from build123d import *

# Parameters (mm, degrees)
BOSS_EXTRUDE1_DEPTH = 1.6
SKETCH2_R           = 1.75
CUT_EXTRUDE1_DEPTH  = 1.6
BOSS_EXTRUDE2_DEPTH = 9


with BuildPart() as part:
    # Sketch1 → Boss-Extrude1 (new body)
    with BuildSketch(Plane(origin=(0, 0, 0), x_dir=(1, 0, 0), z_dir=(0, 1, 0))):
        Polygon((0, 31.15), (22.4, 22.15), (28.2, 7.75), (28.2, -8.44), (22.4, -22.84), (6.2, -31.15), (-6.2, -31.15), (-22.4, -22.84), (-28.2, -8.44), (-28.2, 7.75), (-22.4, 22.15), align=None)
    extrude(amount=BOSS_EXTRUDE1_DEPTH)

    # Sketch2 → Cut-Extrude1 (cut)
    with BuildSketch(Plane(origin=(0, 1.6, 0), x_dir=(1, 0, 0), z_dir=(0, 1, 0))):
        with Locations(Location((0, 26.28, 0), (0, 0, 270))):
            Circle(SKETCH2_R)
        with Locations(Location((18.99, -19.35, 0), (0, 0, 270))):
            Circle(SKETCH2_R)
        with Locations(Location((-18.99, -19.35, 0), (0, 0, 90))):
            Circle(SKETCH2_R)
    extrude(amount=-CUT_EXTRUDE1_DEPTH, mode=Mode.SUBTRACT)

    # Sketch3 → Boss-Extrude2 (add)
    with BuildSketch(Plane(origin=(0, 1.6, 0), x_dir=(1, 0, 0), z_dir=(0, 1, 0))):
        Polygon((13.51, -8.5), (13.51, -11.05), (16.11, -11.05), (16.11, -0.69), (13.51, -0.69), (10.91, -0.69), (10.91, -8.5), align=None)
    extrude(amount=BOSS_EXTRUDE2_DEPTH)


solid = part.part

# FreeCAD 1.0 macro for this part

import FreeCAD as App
import Part
import Sketcher
from FreeCAD import Vector

doc = App.newDocument("Part")
body = doc.addObject("PartDesign::Body", "Body")

# Sketch on XZ plane
sketch1 = doc.addObject("Sketcher::SketchObject", "Sketch")
body.addObject(sketch1)
sketch1.AttachmentSupport = (doc.XZ_Plane, [""])
sketch1.MapMode = "FlatFace"
sketch1.addGeometry([
    Part.LineSegment(Vector(22, -22, 0), Vector(0, -31, 0)),  # 0
    Part.LineSegment(Vector(0, -31, 0), Vector(-22, -22, 0)),  # 1
    Part.LineSegment(Vector(-22, -22, 0), Vector(-28, -8, 0)),  # 2
    Part.LineSegment(Vector(-28, -8, 0), Vector(-28, 8, 0)),  # 3
    Part.LineSegment(Vector(-28, 8, 0), Vector(-22, 23, 0)),  # 4
    Part.LineSegment(Vector(-22, 23, 0), Vector(-6, 31, 0)),  # 5
    Part.LineSegment(Vector(-6, 31, 0), Vector(6, 31, 0)),  # 6
    Part.LineSegment(Vector(6, 31, 0), Vector(22, 23, 0)),  # 7
    Part.LineSegment(Vector(22, 23, 0), Vector(28, 8, 0)),  # 8
    Part.LineSegment(Vector(28, 8, 0), Vector(28, -8, 0)),  # 9
    Part.LineSegment(Vector(28, -8, 0), Vector(22, -22, 0)),  # 10
], False)
sketch1.addConstraint([
    Sketcher.Constraint("Coincident", 0, 2, 1, 1),
    Sketcher.Constraint("Coincident", 1, 2, 2, 1),
    Sketcher.Constraint("Coincident", 2, 2, 3, 1),
    Sketcher.Constraint("Coincident", 3, 2, 4, 1),
    Sketcher.Constraint("Coincident", 4, 2, 5, 1),
    Sketcher.Constraint("Coincident", 5, 2, 6, 1),
    Sketcher.Constraint("Coincident", 6, 2, 7, 1),
    Sketcher.Constraint("Coincident", 7, 2, 8, 1),
    Sketcher.Constraint("Coincident", 8, 2, 9, 1),
    Sketcher.Constraint("Coincident", 9, 2, 10, 1),
    Sketcher.Constraint("Coincident", 10, 2, 0, 1),
    Sketcher.Constraint("Vertical", 3),
    Sketcher.Constraint("Horizontal", 6),
    Sketcher.Constraint("Vertical", 9),
    Sketcher.Constraint("Symmetric", 4, 2, 7, 2, -2),
    Sketcher.Constraint("Symmetric", 3, 2, 8, 2, -2),
    Sketcher.Constraint("Symmetric", 1, 2, 10, 2, -2),
    Sketcher.Constraint("PointOnObject", 0, 2, -2),
    Sketcher.Constraint("Parallel", 2, 8),
    Sketcher.Constraint("Parallel", 4, 10),
    Sketcher.Constraint("Vertical", 1, 2, 4, 2),
    Sketcher.Constraint("Equal", 5, 7),
    Sketcher.Constraint("DistanceX", 6, 1, 6, 2, 12.4),
    Sketcher.Constraint("DistanceY", 0, 2, 1, 2, 9.0),
    Sketcher.Constraint("DistanceX", 3, 2, 5, 2, 22.0),
    Sketcher.Constraint("DistanceY", 3, 1, 3, 2, 16.19),
    Sketcher.Constraint("DistanceX", 1, 2, -1, 1, 22.4),
    Sketcher.Constraint("DistanceY", 1, 2, 2, 2, 14.4),
    Sketcher.Constraint("DistanceY", 2, 2, 5, 2, 38.9),
    Sketcher.Constraint("DistanceY", 0, 2, -1, 1, 31.15),
])
pad1 = doc.addObject("PartDesign::Pad", "Pad")
body.addObject(pad1)
pad1.Profile = sketch1
pad1.Length = 1.6
pad1.Reversed = True

# Sketch on XZ plane
sketch2 = doc.addObject("Sketcher::SketchObject", "Sketch001")
body.addObject(sketch2)
sketch2.AttachmentSupport = (doc.XZ_Plane, [""])
sketch2.MapMode = "FlatFace"
sketch2.AttachmentOffset = App.Placement(Vector(0, 0, -1.6), App.Rotation())
sketch2.addGeometry([
    Part.Circle(Vector(0, -26.3, 0), Vector(0, 0, 1), 1.8),
    Part.Circle(Vector(19, 19.4, 0), Vector(0, 0, 1), 1.8),
    Part.Circle(Vector(-19, 19.4, 0), Vector(0, 0, 1), 1.8),
], False)
sketch2.addConstraint([
    Sketcher.Constraint("Equal", 0, 1),
    Sketcher.Constraint("Equal", 1, 2),
    Sketcher.Constraint("Symmetric", 1, 3, 2, 3, -2),
    Sketcher.Constraint("PointOnObject", 0, 3, -2),
    Sketcher.Constraint("Diameter", 0, 3.5),
    Sketcher.Constraint("DistanceY", 0, 3, -1, 1, 26.28),
    Sketcher.Constraint("DistanceX", -1, 1, 1, 3, 18.99),
    Sketcher.Constraint("DistanceY", -1, 1, 1, 3, 19.35),
])
pocket1 = doc.addObject("PartDesign::Pocket", "Pocket")
body.addObject(pocket1)
pocket1.Profile = sketch2
pocket1.Length = 1.6
pocket1.Reversed = True

# Sketch on XZ plane
sketch3 = doc.addObject("Sketcher::SketchObject", "Sketch002")
body.addObject(sketch3)
sketch3.AttachmentSupport = (doc.XZ_Plane, [""])
sketch3.MapMode = "FlatFace"
sketch3.AttachmentOffset = App.Placement(Vector(0, 0, -1.6), App.Rotation())
sketch3.addGeometry([
    Part.LineSegment(Vector(13.5, 8.5, 0), Vector(13.5, 11.1, 0)),  # 0
    Part.LineSegment(Vector(13.5, 11.1, 0), Vector(16.1, 11.1, 0)),  # 1
    Part.LineSegment(Vector(16.1, 11.1, 0), Vector(16.1, 0.7, 0)),  # 2
    Part.LineSegment(Vector(16.1, 0.7, 0), Vector(10.9, 0.7, 0)),  # 3
    Part.LineSegment(Vector(10.9, 0.7, 0), Vector(10.9, 8.5, 0)),  # 4
    Part.LineSegment(Vector(10.9, 8.5, 0), Vector(13.5, 8.5, 0)),  # 5
], False)
sketch3.addConstraint([
    Sketcher.Constraint("Coincident", 0, 2, 1, 1),
    Sketcher.Constraint("Coincident", 1, 2, 2, 1),
    Sketcher.Constraint("Coincident", 2, 2, 3, 1),
    Sketcher.Constraint("Coincident", 3, 2, 4, 1),
    Sketcher.Constraint("Coincident", 4, 2, 5, 1),
    Sketcher.Constraint("Coincident", 5, 2, 0, 1),
    Sketcher.Constraint("Vertical", 0),
    Sketcher.Constraint("Horizontal", 1),
    Sketcher.Constraint("Vertical", 2),
    Sketcher.Constraint("Horizontal", 3),
    Sketcher.Constraint("Vertical", 4),
    Sketcher.Constraint("Horizontal", 5),
    Sketcher.Constraint("Equal", 1, 5),
    Sketcher.Constraint("DistanceX", 1, 1, 1, 2, 2.6),
    Sketcher.Constraint("DistanceY", 0, 1, 0, 2, 2.55),
    Sketcher.Constraint("DistanceY", 2, 2, 2, 1, 10.36),
    Sketcher.Constraint("DistanceY", -1, 1, 4, 2, 8.5),
    Sketcher.Constraint("DistanceX", -1, 1, 0, 2, 13.51),
])
pad2 = doc.addObject("PartDesign::Pad", "Pad001")
body.addObject(pad2)
pad2.Profile = sketch3
pad2.Length = 9
pad2.Reversed = True

doc.recompute()
